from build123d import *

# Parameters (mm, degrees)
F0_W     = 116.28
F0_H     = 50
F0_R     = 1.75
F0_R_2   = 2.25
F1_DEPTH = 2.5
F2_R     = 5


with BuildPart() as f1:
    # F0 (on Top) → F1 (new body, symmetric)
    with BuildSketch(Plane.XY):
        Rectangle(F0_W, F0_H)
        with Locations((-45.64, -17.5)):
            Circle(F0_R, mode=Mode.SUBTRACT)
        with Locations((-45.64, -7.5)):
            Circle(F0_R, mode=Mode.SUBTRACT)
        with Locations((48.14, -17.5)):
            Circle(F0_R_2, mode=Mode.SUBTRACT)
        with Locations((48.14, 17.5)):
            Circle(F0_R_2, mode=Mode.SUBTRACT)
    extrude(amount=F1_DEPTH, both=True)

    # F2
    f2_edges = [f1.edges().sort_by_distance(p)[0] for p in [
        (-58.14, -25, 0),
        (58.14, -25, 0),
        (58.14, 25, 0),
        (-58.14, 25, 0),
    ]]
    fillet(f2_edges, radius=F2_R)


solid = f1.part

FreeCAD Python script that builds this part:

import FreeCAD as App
import Part
import Sketcher
from FreeCAD import Vector
Q = App.Units.Quantity


def edges_at(feature, points):
    """Names of the edges that pass closest to the given points."""
    edges = feature.Shape.Edges
    near = lambda p: min(range(len(edges)), key=lambda i: edges[i].distToShape(Part.Vertex(*p))[0])
    return sorted({f"Edge{near(p) + 1}" for p in points})


def add_polygon(sketch, points):
    """Adds a closed chain of lines whose ends are joined by coincident constraints."""
    first, n = sketch.GeometryCount, len(points)
    for a, b in zip(points, points[1:] + points[:1]):
        sketch.addGeometry(Part.LineSegment(App.Vector(*a, 0), App.Vector(*b, 0)), False)
    for i in range(n):
        sketch.addConstraint(Sketcher.Constraint("Coincident", first + i, 2, first + (i + 1) % n, 1))

doc = App.newDocument("Part")
body = doc.addObject("PartDesign::Body", "Body")

# Sketch on XY plane
sketch1 = doc.addObject("Sketcher::SketchObject", "Sketch")
body.addObject(sketch1)
sketch1.AttachmentSupport = (doc.XY_Plane, [""])
sketch1.MapMode = "FlatFace"
add_polygon(sketch1, [(-58.14, 25), (-58.14, -25), (58.14, -25), (58.14, 25)])  # lines 0-3
sketch1.addGeometry(Part.Circle(Vector(-45.64, -17.5, 0), Vector(0, 0, 1), 1.75), False)  # 4
sketch1.addGeometry(Part.Circle(Vector(-45.64, -7.5, 0), Vector(0, 0, 1), 1.75), False)  # 5
sketch1.addGeometry(Part.Circle(Vector(48.14, -17.5, 0), Vector(0, 0, 1), 2.25), False)  # 6
sketch1.addGeometry(Part.Circle(Vector(48.14, 17.5, 0), Vector(0, 0, 1), 2.25), False)  # 7
sketch1.addConstraint([
    Sketcher.Constraint("Vertical", 0),
    Sketcher.Constraint("Horizontal", 1),
    Sketcher.Constraint("Vertical", 2),
    Sketcher.Constraint("Horizontal", 3),
    Sketcher.Constraint("Equal", 4, 5),
    Sketcher.Constraint("Equal", 6, 7),
    Sketcher.Constraint("Symmetric", 0, 2, 2, 2, -1, 1),
    Sketcher.Constraint("Symmetric", 6, 3, 7, 3, -1),
    Sketcher.Constraint("Horizontal", 4, 3, 6, 3),
    Sketcher.Constraint("Vertical", 4, 3, 5, 3),
    Sketcher.Constraint("Diameter", 4, Q("3.5 mm")),
    Sketcher.Constraint("Diameter", 6, Q("4.5 mm")),
    Sketcher.Constraint("DistanceY", 0, 2, 0, 1, Q("50 mm")),
    Sketcher.Constraint("DistanceY", 4, 3, 5, 3, Q("10 mm")),
    Sketcher.Constraint("DistanceY", 6, 3, 7, 3, Q("35 mm")),
    Sketcher.Constraint("DistanceX", 6, 3, 1, 2, Q("10 mm")),
    Sketcher.Constraint("DistanceX", 1, 1, 1, 2, Q("116.28 mm")),
    Sketcher.Constraint("DistanceX", 0, 2, 4, 3, Q("12.5 mm")),
])
pad1 = doc.addObject("PartDesign::Pad", "Pad")
body.addObject(pad1)
pad1.Profile = sketch1
pad1.Length = 5
pad1.Midplane = True
doc.recompute()

fillet = doc.addObject("PartDesign::Fillet", "Fillet")
body.addObject(fillet)
fillet.Base = (pad1, edges_at(pad1, [
    (-58.14, -25, 0),
    (58.14, -25, 0),
    (58.14, 25, 0),
    (-58.14, 25, 0),
]))
fillet.Radius = 5

doc.recompute()
